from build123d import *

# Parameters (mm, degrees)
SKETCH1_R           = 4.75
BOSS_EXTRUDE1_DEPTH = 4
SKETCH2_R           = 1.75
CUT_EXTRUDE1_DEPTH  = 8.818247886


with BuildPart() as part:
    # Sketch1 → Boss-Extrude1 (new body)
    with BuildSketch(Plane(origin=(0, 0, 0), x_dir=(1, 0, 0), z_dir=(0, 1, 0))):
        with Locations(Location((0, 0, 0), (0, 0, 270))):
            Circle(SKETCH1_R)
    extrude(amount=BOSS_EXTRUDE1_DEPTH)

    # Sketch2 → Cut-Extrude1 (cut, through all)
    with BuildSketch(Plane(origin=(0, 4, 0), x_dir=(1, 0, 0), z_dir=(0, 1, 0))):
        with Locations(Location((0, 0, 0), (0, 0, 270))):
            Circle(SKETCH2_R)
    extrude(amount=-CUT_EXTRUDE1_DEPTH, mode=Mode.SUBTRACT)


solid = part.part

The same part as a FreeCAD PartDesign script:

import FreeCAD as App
import Part
import Sketcher

V = App.Vector
Q = App.Units.Quantity

doc = App.newDocument("Part")
params = doc.addObject("Spreadsheet::Sheet", "Params")
for row, (alias, value) in enumerate([
    ("sketch1_diameter", "9.5 mm"),
    ("pad1_length", "4 mm"),
    ("sketch2_diameter", "3.5 mm"),
], start=1):
    params.set(f"A{row}", alias)
    params.set(f"B{row}", "=" + value)
    params.setAlias(f"B{row}", alias)

body = doc.addObject("PartDesign::Body", "Body")

# Sketch on XZ plane
sketch1 = doc.addObject("Sketcher::SketchObject", "Sketch")
body.addObject(sketch1)
sketch1.AttachmentSupport = (doc.XZ_Plane, [""])
sketch1.MapMode = "FlatFace"
sketch1.addGeometry(Part.Circle(V(0, 0, 0), V(0, 0, 1), 4.75), False)
sketch1.addConstraint([
    Sketcher.Constraint("Coincident", 0, 3, -1, 1),
    Sketcher.Constraint("Diameter", 0, Q("9.5 mm")),
])
sketch1.setExpression("Constraints[1]", "Params.sketch1_diameter")
pad1 = doc.addObject("PartDesign::Pad", "Pad")
body.addObject(pad1)
pad1.Profile = sketch1
pad1.setExpression("Length", "Params.pad1_length")
pad1.Reversed = True

# Sketch on XZ plane
sketch2 = doc.addObject("Sketcher::SketchObject", "Sketch001")
body.addObject(sketch2)
sketch2.AttachmentSupport = (doc.XZ_Plane, [""])
sketch2.MapMode = "FlatFace"
sketch2.AttachmentOffset = App.Placement(V(0, 0, -4), App.Rotation())
sketch2.addGeometry(Part.Circle(V(0, 0, 0), V(0, 0, 1), 1.75), False)
sketch2.addConstraint([
    Sketcher.Constraint("Coincident", 0, 3, -1, 1),
    Sketcher.Constraint("Diameter", 0, Q("3.5 mm")),
])
sketch2.setExpression("Constraints[1]", "Params.sketch2_diameter")
pocket1 = doc.addObject("PartDesign::Pocket", "Pocket")
body.addObject(pocket1)
pocket1.Profile = sketch2
pocket1.Type = "ThroughAll"
pocket1.Reversed = True

doc.recompute()
